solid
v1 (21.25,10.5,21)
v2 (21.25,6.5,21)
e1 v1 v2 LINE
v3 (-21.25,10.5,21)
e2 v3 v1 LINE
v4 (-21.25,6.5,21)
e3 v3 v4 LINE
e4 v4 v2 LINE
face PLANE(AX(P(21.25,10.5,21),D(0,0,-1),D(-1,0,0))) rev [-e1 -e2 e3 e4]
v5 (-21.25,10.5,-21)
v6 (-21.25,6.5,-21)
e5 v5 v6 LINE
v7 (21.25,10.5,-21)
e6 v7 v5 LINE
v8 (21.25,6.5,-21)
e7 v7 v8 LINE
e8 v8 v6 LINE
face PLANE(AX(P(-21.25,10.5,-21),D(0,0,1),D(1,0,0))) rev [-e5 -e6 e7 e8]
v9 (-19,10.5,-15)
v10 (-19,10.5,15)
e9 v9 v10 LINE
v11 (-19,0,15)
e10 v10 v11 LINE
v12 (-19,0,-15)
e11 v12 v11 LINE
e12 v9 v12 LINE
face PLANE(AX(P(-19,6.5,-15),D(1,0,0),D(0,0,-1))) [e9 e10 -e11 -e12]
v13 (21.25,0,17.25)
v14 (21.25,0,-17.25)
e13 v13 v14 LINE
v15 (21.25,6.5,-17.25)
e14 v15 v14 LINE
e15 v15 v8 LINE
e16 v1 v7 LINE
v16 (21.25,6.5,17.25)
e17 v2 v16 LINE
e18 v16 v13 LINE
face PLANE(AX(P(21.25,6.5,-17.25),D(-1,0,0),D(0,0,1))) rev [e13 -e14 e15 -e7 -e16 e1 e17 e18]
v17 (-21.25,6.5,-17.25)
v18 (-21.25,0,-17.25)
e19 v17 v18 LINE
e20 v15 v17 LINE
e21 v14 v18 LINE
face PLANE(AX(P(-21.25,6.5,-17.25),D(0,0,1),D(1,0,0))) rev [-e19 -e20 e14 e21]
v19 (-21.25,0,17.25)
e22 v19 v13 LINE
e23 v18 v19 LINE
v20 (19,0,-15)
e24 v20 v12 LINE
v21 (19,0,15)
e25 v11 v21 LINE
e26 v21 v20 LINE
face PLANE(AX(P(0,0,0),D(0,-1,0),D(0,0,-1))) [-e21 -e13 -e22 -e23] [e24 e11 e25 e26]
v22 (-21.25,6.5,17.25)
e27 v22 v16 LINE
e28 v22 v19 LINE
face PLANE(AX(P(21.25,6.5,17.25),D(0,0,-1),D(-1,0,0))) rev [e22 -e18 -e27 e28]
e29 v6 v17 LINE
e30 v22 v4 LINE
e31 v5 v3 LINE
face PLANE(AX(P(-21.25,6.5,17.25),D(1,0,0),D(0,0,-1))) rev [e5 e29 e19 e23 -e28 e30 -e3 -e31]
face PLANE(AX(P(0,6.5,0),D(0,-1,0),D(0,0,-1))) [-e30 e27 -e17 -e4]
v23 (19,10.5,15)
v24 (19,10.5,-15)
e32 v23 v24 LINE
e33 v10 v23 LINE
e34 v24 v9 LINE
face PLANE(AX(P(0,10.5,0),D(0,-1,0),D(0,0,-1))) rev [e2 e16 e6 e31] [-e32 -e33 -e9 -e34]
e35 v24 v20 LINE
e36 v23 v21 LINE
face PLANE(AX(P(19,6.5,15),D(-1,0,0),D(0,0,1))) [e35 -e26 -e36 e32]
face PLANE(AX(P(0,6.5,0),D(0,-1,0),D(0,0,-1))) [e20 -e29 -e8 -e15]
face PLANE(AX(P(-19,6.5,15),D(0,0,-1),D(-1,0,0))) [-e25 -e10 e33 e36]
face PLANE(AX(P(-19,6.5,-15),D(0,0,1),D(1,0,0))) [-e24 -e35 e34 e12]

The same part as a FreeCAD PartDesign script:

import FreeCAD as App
import Part
import Sketcher
from FreeCAD import Vector
Q = App.Units.Quantity


def add_polygon(sketch, points):
    """Adds a closed chain of lines whose ends are joined by coincident constraints."""
    first, n = sketch.GeometryCount, len(points)
    for a, b in zip(points, points[1:] + points[:1]):
        sketch.addGeometry(Part.LineSegment(App.Vector(*a, 0), App.Vector(*b, 0)), False)
    for i in range(n):
        sketch.addConstraint(Sketcher.Constraint("Coincident", first + i, 2, first + (i + 1) % n, 1))

doc = App.newDocument("Part")
body = doc.addObject("PartDesign::Body", "Body")

# Sketch on XZ plane
sketch1 = body.newObject("Sketcher::SketchObject", "Sketch")
sketch1.AttachmentSupport = (doc.getObject("XZ_Plane"), [""])
sketch1.MapMode = "FlatFace"
add_polygon(sketch1, [(-21, -17), (-21, 17), (21, 17), (21, -17)])  # lines 0-3
add_polygon(sketch1, [(19, 15), (-19, 15), (-19, -15), (19, -15)])  # lines 4-7
sketch1.addConstraint(Sketcher.Constraint("Vertical", 0))
sketch1.addConstraint(Sketcher.Constraint("Horizontal", 1))
sketch1.addConstraint(Sketcher.Constraint("Vertical", 2))
sketch1.addConstraint(Sketcher.Constraint("Horizontal", 3))
sketch1.addConstraint(Sketcher.Constraint("Horizontal", 4))
sketch1.addConstraint(Sketcher.Constraint("Vertical", 5))
sketch1.addConstraint(Sketcher.Constraint("Horizontal", 6))
sketch1.addConstraint(Sketcher.Constraint("Vertical", 7))
sketch1.addConstraint(Sketcher.Constraint("Symmetric", 0, 2, 2, 2, -1, 1))
sketch1.addConstraint(Sketcher.Constraint("Symmetric", 4, 2, 6, 2, -1, 1))
sketch1.addConstraint(Sketcher.Constraint("DistanceX", 4, 2, 4, 1, Q("38 mm")))
sketch1.addConstraint(Sketcher.Constraint("DistanceY", 5, 2, 5, 1, Q("30 mm")))
sketch1.addConstraint(Sketcher.Constraint("DistanceX", 1, 1, 1, 2, Q("42.5 mm")))
sketch1.addConstraint(Sketcher.Constraint("DistanceY", 0, 1, 0, 2, Q("34.5 mm")))
pad1 = body.newObject("PartDesign::Pad", "Pad")
pad1.Profile = sketch1
pad1.Length = 6.5
pad1.Reversed = True

# Sketch on XZ plane
sketch2 = body.newObject("Sketcher::SketchObject", "Sketch001")
sketch2.AttachmentSupport = (doc.getObject("XZ_Plane"), [""])
sketch2.MapMode = "FlatFace"
sketch2.AttachmentOffset = App.Placement(Vector(0, 0, -6.5), App.Rotation())
add_polygon(sketch2, [(-21, -21), (-21, 21), (21, 21), (21, -21)])  # lines 0-3
add_polygon(sketch2, [(19, 15), (-19, 15), (-19, -15), (19, -15)])  # lines 4-7
sketch2.addConstraint(Sketcher.Constraint("Vertical", 0))
sketch2.addConstraint(Sketcher.Constraint("Horizontal", 1))
sketch2.addConstraint(Sketcher.Constraint("Vertical", 2))
sketch2.addConstraint(Sketcher.Constraint("Horizontal", 3))
sketch2.addConstraint(Sketcher.Constraint("Horizontal", 4))
sketch2.addConstraint(Sketcher.Constraint("Vertical", 5))
sketch2.addConstraint(Sketcher.Constraint("Horizontal", 6))
sketch2.addConstraint(Sketcher.Constraint("Vertical", 7))
sketch2.addConstraint(Sketcher.Constraint("Symmetric", 0, 2, 2, 2, -1, 1))
sketch2.addConstraint(Sketcher.Constraint("Symmetric", 4, 2, 6, 2, -1, 1))
sketch2.addConstraint(Sketcher.Constraint("DistanceX", 4, 2, 4, 1, Q("38 mm")))
sketch2.addConstraint(Sketcher.Constraint("DistanceY", 0, 1, 0, 2, Q("42 mm")))
sketch2.addConstraint(Sketcher.Constraint("DistanceY", 5, 2, 5, 1, Q("30 mm")))
sketch2.addConstraint(Sketcher.Constraint("DistanceX", 1, 1, 1, 2, Q("42.5 mm")))
pad2 = body.newObject("PartDesign::Pad", "Pad001")
pad2.Profile = sketch2
pad2.Length = 4
pad2.Reversed = True

doc.recompute()
